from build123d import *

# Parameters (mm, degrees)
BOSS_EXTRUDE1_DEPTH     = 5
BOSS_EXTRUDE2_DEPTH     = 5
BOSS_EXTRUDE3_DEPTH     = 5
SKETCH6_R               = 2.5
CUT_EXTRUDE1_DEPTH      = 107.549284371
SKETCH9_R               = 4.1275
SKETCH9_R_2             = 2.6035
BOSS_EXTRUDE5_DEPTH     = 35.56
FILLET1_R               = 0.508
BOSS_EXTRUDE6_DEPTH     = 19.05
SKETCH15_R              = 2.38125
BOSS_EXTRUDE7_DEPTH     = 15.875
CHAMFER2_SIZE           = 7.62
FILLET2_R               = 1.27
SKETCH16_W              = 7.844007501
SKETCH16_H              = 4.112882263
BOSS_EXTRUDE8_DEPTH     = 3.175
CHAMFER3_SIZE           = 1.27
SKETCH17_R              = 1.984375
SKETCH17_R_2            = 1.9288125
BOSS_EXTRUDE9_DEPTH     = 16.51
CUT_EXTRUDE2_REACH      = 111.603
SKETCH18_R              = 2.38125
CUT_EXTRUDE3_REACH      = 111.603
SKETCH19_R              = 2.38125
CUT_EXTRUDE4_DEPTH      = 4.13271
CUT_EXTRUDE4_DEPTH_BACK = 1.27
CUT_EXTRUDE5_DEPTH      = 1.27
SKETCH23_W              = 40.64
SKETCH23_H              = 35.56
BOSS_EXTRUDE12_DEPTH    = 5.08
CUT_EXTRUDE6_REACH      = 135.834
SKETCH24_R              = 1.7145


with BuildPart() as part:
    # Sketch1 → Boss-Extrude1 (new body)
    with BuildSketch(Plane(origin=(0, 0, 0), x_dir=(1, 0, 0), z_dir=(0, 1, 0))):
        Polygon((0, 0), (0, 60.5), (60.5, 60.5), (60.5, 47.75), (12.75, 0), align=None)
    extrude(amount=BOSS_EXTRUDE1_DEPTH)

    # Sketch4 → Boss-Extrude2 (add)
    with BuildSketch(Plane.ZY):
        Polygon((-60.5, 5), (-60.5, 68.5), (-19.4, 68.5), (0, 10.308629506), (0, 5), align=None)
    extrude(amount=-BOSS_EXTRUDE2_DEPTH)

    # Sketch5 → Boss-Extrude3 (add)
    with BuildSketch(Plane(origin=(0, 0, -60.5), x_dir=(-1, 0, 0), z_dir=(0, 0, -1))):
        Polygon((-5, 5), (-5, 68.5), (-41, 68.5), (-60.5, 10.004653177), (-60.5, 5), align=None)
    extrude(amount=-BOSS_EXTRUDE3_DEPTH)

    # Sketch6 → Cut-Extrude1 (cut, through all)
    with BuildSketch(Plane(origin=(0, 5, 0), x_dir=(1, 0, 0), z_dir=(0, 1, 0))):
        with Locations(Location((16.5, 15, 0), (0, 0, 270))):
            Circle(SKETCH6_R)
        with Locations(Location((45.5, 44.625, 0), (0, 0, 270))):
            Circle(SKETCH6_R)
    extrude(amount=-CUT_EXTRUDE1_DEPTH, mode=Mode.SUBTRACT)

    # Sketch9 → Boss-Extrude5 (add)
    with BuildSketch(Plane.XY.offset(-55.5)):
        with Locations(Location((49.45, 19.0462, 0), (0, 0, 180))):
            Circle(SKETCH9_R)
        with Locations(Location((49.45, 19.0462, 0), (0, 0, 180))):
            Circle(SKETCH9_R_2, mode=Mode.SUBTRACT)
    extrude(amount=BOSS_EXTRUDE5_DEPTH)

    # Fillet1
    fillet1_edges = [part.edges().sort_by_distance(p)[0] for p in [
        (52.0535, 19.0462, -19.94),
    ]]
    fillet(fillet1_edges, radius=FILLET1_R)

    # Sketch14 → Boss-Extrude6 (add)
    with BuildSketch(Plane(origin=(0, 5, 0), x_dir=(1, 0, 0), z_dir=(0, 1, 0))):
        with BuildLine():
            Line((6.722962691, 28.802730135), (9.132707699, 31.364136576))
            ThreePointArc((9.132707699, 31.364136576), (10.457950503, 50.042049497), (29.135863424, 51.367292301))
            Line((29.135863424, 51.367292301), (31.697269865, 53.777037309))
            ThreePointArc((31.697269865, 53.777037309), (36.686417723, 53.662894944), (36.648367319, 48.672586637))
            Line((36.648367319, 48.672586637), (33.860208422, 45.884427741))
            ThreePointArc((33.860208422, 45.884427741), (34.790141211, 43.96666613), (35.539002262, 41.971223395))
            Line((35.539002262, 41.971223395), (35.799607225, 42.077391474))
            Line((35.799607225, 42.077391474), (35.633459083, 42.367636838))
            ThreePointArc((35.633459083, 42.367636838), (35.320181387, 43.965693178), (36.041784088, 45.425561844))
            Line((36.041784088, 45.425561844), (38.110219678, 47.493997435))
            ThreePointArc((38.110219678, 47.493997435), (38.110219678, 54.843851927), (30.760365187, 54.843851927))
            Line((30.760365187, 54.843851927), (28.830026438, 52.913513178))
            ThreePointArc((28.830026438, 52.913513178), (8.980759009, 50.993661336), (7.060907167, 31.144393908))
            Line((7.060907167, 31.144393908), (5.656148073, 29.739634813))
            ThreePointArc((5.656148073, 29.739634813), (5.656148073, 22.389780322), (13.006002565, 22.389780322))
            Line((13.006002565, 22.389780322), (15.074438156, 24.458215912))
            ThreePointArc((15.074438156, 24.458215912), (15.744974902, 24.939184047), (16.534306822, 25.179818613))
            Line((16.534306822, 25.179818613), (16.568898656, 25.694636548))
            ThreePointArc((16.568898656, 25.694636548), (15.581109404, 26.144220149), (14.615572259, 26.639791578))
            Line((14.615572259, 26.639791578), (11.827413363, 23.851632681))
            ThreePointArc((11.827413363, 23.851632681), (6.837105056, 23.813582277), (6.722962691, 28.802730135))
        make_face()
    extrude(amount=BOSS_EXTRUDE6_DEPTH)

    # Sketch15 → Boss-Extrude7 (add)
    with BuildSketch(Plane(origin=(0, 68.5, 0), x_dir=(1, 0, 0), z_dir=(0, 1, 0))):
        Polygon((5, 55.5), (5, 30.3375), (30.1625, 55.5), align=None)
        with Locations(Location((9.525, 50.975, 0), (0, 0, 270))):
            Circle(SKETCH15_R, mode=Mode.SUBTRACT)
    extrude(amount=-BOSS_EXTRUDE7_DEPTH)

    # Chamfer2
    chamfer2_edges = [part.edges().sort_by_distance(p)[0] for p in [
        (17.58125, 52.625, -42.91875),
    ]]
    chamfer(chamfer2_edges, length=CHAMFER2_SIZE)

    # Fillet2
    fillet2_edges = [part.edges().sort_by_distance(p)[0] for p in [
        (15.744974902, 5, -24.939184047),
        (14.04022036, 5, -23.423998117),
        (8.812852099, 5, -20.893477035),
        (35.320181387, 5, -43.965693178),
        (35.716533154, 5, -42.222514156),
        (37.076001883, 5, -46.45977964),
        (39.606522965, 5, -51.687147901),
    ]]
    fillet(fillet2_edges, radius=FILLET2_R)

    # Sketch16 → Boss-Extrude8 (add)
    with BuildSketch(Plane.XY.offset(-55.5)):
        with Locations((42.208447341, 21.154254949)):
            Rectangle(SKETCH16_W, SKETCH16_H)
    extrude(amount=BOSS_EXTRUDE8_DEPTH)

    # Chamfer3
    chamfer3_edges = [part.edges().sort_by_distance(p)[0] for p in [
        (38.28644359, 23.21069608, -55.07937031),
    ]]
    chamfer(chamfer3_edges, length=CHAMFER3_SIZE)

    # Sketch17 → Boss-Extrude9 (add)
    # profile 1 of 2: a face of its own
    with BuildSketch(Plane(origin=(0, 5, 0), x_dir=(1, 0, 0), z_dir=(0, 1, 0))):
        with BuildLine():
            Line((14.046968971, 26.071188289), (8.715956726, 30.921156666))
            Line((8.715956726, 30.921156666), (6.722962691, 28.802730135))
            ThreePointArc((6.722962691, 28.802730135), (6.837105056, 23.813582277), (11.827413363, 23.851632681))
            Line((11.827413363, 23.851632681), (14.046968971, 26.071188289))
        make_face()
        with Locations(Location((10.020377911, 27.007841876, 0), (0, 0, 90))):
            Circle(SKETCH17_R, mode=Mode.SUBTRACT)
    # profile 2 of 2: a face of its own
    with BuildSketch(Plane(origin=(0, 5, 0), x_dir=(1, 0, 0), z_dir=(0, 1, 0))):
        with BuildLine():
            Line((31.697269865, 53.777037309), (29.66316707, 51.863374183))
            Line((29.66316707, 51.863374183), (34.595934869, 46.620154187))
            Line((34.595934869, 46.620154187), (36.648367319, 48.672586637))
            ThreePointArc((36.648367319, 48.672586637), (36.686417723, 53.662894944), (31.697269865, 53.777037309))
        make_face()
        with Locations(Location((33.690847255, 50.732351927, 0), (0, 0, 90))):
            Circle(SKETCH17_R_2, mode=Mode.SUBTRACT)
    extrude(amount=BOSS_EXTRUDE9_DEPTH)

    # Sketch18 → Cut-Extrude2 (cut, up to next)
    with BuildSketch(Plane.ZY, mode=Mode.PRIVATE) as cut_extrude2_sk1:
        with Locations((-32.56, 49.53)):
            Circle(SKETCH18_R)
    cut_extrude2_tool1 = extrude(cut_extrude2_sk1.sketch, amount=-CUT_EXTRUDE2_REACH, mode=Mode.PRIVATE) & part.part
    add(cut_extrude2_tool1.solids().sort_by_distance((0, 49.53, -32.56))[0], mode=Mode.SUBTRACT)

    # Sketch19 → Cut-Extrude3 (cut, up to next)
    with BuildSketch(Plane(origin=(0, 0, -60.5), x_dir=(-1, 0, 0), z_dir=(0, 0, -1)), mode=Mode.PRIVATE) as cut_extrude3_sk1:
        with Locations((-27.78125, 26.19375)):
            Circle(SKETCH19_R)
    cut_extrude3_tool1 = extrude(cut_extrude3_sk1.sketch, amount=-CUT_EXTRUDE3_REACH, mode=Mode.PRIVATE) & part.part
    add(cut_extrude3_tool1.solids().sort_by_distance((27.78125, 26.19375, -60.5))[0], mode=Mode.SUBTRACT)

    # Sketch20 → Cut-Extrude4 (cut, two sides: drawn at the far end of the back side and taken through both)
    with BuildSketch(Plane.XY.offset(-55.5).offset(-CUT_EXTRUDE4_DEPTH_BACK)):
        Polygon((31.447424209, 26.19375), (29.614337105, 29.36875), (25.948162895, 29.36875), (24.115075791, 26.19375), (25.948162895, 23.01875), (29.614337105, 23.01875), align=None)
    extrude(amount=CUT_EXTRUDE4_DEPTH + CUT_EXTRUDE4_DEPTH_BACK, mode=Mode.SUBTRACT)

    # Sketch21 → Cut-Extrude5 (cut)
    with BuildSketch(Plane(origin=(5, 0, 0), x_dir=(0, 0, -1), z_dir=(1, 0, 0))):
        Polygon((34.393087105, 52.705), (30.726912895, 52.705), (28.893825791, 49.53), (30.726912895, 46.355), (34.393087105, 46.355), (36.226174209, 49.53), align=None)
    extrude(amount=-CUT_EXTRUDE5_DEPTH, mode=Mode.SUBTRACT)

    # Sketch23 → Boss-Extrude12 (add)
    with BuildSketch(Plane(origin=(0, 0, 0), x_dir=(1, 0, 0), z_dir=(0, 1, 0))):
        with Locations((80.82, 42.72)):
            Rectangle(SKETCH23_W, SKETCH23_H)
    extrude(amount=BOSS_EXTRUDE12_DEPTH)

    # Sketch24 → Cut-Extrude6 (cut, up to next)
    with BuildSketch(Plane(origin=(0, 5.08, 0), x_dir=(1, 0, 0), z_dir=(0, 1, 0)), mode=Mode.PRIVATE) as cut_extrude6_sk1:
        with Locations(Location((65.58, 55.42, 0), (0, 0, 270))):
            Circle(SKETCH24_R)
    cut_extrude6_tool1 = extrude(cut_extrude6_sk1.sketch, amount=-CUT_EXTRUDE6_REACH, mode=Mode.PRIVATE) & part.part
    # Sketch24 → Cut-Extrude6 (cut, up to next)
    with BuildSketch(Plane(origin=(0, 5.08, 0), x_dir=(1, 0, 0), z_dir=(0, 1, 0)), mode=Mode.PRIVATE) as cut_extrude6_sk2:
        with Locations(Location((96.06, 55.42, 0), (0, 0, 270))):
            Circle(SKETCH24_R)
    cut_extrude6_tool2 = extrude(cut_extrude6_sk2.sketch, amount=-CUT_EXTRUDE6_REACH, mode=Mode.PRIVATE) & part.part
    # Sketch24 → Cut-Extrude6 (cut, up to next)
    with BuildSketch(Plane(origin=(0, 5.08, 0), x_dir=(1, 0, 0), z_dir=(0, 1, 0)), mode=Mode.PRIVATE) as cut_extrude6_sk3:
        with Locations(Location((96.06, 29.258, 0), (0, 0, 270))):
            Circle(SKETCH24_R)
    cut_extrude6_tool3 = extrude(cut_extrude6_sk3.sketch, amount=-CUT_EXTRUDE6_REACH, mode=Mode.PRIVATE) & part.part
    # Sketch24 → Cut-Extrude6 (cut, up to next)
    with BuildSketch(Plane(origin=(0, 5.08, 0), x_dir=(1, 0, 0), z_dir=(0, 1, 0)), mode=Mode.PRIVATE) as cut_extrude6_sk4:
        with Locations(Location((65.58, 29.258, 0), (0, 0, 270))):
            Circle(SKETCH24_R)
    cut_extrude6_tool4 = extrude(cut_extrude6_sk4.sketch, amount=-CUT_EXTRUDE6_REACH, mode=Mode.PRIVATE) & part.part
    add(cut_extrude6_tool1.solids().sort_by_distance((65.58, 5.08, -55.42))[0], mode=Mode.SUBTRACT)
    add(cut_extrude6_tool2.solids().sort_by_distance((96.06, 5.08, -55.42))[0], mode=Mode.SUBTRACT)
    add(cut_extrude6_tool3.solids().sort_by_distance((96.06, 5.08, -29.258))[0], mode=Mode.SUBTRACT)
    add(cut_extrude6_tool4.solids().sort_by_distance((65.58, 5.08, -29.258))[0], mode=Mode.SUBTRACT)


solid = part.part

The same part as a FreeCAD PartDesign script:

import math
import FreeCAD as App
import Part
import Sketcher

V = App.Vector
Q = App.Units.Quantity


def edges_at(feature, points):
    """Names of the edges that pass closest to the given points."""
    edges = feature.Shape.Edges
    near = lambda p: min(range(len(edges)), key=lambda i: edges[i].distToShape(Part.Vertex(*p))[0])
    return sorted({f"Edge{near(p) + 1}" for p in points})


def add_polygon(sketch, points):
    """Adds a closed chain of lines whose ends are joined by coincident constraints."""
    first, n = sketch.GeometryCount, len(points)
    for a, b in zip(points, points[1:] + points[:1]):
        sketch.addGeometry(Part.LineSegment(App.Vector(*a, 0), App.Vector(*b, 0)), False)
    for i in range(n):
        sketch.addConstraint(Sketcher.Constraint("Coincident", first + i, 2, first + (i + 1) % n, 1))

doc = App.newDocument("Part")
body = doc.addObject("PartDesign::Body", "Body")

sketch1 = body.newObject("Sketcher::SketchObject", "Sketch")
sketch1.AttachmentSupport = (doc.getObject("XZ_Plane"), [""])
sketch1.MapMode = "FlatFace"
add_polygon(sketch1, [(0, -60), (0, 0), (13, 0), (60, -48), (60, -60)])
sketch1.addConstraint([
    Sketcher.Constraint("Vertical", 0),
    Sketcher.Constraint("Horizontal", 1),
    Sketcher.Constraint("Vertical", 3),
    Sketcher.Constraint("Horizontal", 4),
    Sketcher.Constraint("Coincident", 0, 2, -1, 1),
    Sketcher.Constraint("Equal", 4, 0),
    Sketcher.Constraint("Equal", 1, 3),
    Sketcher.Constraint("DistanceX", 1, 1, 1, 2, Q("12.75 mm")),
    Sketcher.Constraint("DistanceX", 4, 2, 4, 1, Q("60.5 mm")),
])
pad1 = body.newObject("PartDesign::Pad", "Pad")
pad1.Profile = sketch1
pad1.Length = 5
pad1.Reversed = True

sketch2 = body.newObject("Sketcher::SketchObject", "Sketch001")
sketch2.AttachmentSupport = (doc.getObject("YZ_Plane"), [""])
sketch2.MapMode = "FlatFace"
add_polygon(sketch2, [(68, -60), (5, -60), (5, 0), (10, 0), (68, -19)])
sketch2.addConstraint([
    Sketcher.Constraint("Horizontal", 0),
    Sketcher.Constraint("Vertical", 1),
    Sketcher.Constraint("Horizontal", 2),
    Sketcher.Constraint("Vertical", 4),
    Sketcher.Constraint("PointOnObject", 1, 2, -1),
    Sketcher.Constraint("DistanceX", 0, 2, 0, 1, Q("2.5 in")),
    Sketcher.Constraint("DistanceY", 1, 1, 1, 2, Q("60.5 mm")),
    Sketcher.Constraint("DistanceY", 4, 2, 4, 1, Q("41.1 mm")),
    Sketcher.Constraint("Distance", 3, Q("61.34 mm")),
    Sketcher.Constraint("DistanceX", -1, 1, 0, 2, Q("5 mm")),
])
pad2 = body.newObject("PartDesign::Pad", "Pad001")
pad2.Profile = sketch2
pad2.Length = 5

sketch3 = body.newObject("Sketcher::SketchObject", "Sketch002")
sketch3.AttachmentSupport = (doc.getObject("XY_Plane"), [""])
sketch3.MapMode = "FlatFace"
sketch3.AttachmentOffset = App.Placement(V(0, 0, -60.5), App.Rotation())
add_polygon(sketch3, [(5, 5), (5, 68), (41, 68), (60, 10), (60, 5)])
sketch3.addConstraint([
    Sketcher.Constraint("Vertical", 0),
    Sketcher.Constraint("Horizontal", 1),
    Sketcher.Constraint("Vertical", 3),
    Sketcher.Constraint("Horizontal", 4),
    Sketcher.Constraint("DistanceY", 0, 1, 0, 2, Q("2.5 in")),
    Sketcher.Constraint("DistanceX", 1, 1, 1, 2, Q("36 mm")),
    Sketcher.Constraint("DistanceX", 4, 2, 4, 1, Q("55.5 mm")),
    Sketcher.Constraint("Distance", 2, Q("61.66 mm")),
    Sketcher.Constraint("DistanceX", -1, 1, 0, 2, Q("5 mm")),
    Sketcher.Constraint("DistanceY", -1, 1, 0, 2, Q("68.5 mm")),
])
pad3 = body.newObject("PartDesign::Pad", "Pad002")
pad3.Profile = sketch3
pad3.Length = 5

sketch4 = body.newObject("Sketcher::SketchObject", "Sketch003")
sketch4.AttachmentSupport = (doc.getObject("XZ_Plane"), [""])
sketch4.MapMode = "FlatFace"
sketch4.AttachmentOffset = App.Placement(V(0, 0, -5), App.Rotation())
sketch4.addGeometry([
    Part.Circle(V(16.5, -15, 0), V(0, 0, 1), 2.5),
    Part.Circle(V(45.5, -44.6, 0), V(0, 0, 1), 2.5),
], False)
sketch4.addConstraint([
    Sketcher.Constraint("Equal", 0, 1),
    Sketcher.Constraint("Diameter", 0, Q("5 mm")),
    Sketcher.Constraint("DistanceX", -1, 1, 0, 3, Q("16.5 mm")),
    Sketcher.Constraint("DistanceY", 0, 3, -1, 1, Q("15 mm")),
    Sketcher.Constraint("DistanceX", -1, 1, 1, 3, Q("45.5 mm")),
    Sketcher.Constraint("DistanceY", 1, 3, -1, 1, Q("44.625 mm")),
])
pocket1 = body.newObject("PartDesign::Pocket", "Pocket")
pocket1.Profile = sketch4
pocket1.Type = "ThroughAll"
pocket1.Reversed = True

sketch5 = body.newObject("Sketcher::SketchObject", "Sketch004")
sketch5.AttachmentSupport = (doc.getObject("XY_Plane"), [""])
sketch5.MapMode = "FlatFace"
sketch5.AttachmentOffset = App.Placement(V(0, 0, -55.5), App.Rotation())
sketch5.addGeometry([
    Part.Circle(V(49.5, 19, 0), V(0, 0, 1), 4.1),
    Part.Circle(V(49.5, 19, 0), V(0, 0, 1), 2.6),
], False)
sketch5.addConstraint([
    Sketcher.Constraint("Coincident", 1, 3, 0, 3),
    Sketcher.Constraint("Diameter", 0, Q("0.325 in")),
    Sketcher.Constraint("Diameter", 1, Q("0.205 in")),
    Sketcher.Constraint("DistanceX", -1, 1, 0, 3, Q("49.45 mm")),
    Sketcher.Constraint("DistanceY", -1, 1, 0, 3, Q("19.0462 mm")),
])
pad4 = body.newObject("PartDesign::Pad", "Pad003")
pad4.Profile = sketch5
pad4.Length = Q("1.4 in")
doc.recompute()

fillet = body.newObject("PartDesign::Fillet", "Fillet")
fillet.Base = (pad4, edges_at(pad4, [(52.053, 19.046, -19.94)]))
fillet.Radius = Q("0.02 in")

sketch6 = body.newObject("Sketcher::SketchObject", "Sketch005")
sketch6.AttachmentSupport = (doc.getObject("XZ_Plane"), [""])
sketch6.MapMode = "FlatFace"
sketch6.AttachmentOffset = App.Placement(V(0, 0, -5), App.Rotation())
sketch6.addGeometry([
    Part.LineSegment(V(6.72, -28.8, 0), V(9.13, -31.36, 0)),
    Part.ArcOfCircle(Part.Circle(V(20.56, -39.94, 0), V(0, 0, 1), 14.29), math.radians(143), math.radians(307)),
    Part.LineSegment(V(29.14, -51.37, 0), V(31.7, -53.78, 0)),
    Part.ArcOfCircle(Part.Circle(V(34.13, -51.19, 0), V(0, 0, 1), 3.56), math.radians(-133), math.radians(45)),
    Part.LineSegment(V(36.65, -48.67, 0), V(33.86, -45.88, 0)),
    Part.ArcOfCircle(Part.Circle(V(13.6, -34.88, 0), V(0, 0, 1), 23.06), math.radians(-28.52), math.radians(-17.92)),
    Part.LineSegment(V(35.54, -41.97, 0), V(35.8, -42.08, 0)),
    Part.LineSegment(V(35.8, -42.08, 0), V(35.63, -42.37, 0)),
    Part.ArcOfCircle(Part.Circle(V(37.84, -43.63, 0), V(0, 0, 1), 2.54), math.radians(150), math.radians(225)),
    Part.LineSegment(V(36.04, -45.43, 0), V(38.11, -47.49, 0)),
    Part.ArcOfCircle(Part.Circle(V(34.44, -51.17, 0), V(0, 0, 1), 5.2), math.radians(-135), math.radians(45)),
    Part.LineSegment(V(30.76, -54.84, 0), V(28.83, -52.91, 0)),
    Part.ArcOfCircle(Part.Circle(V(20.07, -39.9, 0), V(0, 0, 1), 15.68), math.radians(146), math.radians(304)),
    Part.LineSegment(V(7.06, -31.14, 0), V(5.66, -29.74, 0)),
    Part.ArcOfCircle(Part.Circle(V(9.33, -26.06, 0), V(0, 0, 1), 5.2), math.radians(45), math.radians(225)),
    Part.LineSegment(V(13.01, -22.39, 0), V(15.07, -24.46, 0)),
    Part.ArcOfCircle(Part.Circle(V(16.87, -22.66, 0), V(0, 0, 1), 2.54), math.radians(-135), math.radians(-98)),
    Part.LineSegment(V(16.53, -25.18, 0), V(16.57, -25.69, 0)),
    Part.ArcOfCircle(Part.Circle(V(25.62, -46.9, 0), V(0, 0, 1), 23.06), math.radians(113.12), math.radians(118.52)),
    Part.LineSegment(V(14.62, -26.64, 0), V(11.83, -23.85, 0)),
    Part.ArcOfCircle(Part.Circle(V(9.31, -26.37, 0), V(0, 0, 1), 3.56), math.radians(45), math.radians(223)),
], False)
sketch6.addConstraint([
    Sketcher.Constraint("Coincident", 0, 2, 1, 1),
    Sketcher.Constraint("Coincident", 1, 2, 2, 1),
    Sketcher.Constraint("Tangent", 2, 2, 3, 1),
    Sketcher.Constraint("Tangent", 3, 2, 4, 1),
    Sketcher.Constraint("Coincident", 4, 2, 5, 1),
    Sketcher.Constraint("Coincident", 5, 2, 6, 1),
    Sketcher.Constraint("Coincident", 6, 2, 7, 1),
    Sketcher.Constraint("Tangent", 7, 2, 8, 1),
    Sketcher.Constraint("Tangent", 8, 2, 9, 1),
    Sketcher.Constraint("Tangent", 9, 2, 10, 2),
    Sketcher.Constraint("Tangent", 10, 1, 11, 1),
    Sketcher.Constraint("Coincident", 11, 2, 12, 2),
    Sketcher.Constraint("Coincident", 12, 1, 13, 1),
    Sketcher.Constraint("Tangent", 13, 2, 14, 2),
    Sketcher.Constraint("Tangent", 14, 1, 15, 1),
    Sketcher.Constraint("Tangent", 15, 2, 16, 1),
    Sketcher.Constraint("Coincident", 16, 2, 17, 1),
    Sketcher.Constraint("Coincident", 17, 2, 18, 1),
    Sketcher.Constraint("Coincident", 18, 2, 19, 1),
    Sketcher.Constraint("Tangent", 19, 2, 20, 1),
    Sketcher.Constraint("Tangent", 20, 2, 0, 1),
    Sketcher.Constraint("Equal", 10, 14),
    Sketcher.Constraint("Equal", 8, 16),
    Sketcher.Constraint("Equal", 5, 18),
    Sketcher.Constraint("Equal", 3, 20),
    Sketcher.Constraint("Parallel", 4, 9),
    Sketcher.Constraint("Parallel", 9, 11),
    Sketcher.Constraint("Parallel", 11, 13),
    Sketcher.Constraint("Parallel", 13, 15),
    Sketcher.Constraint("Parallel", 15, 19),
    Sketcher.Constraint("Equal", 0, 2),
    Sketcher.Constraint("Equal", 9, 15),
    Sketcher.Constraint("Equal", 4, 19),
    Sketcher.Constraint("Radius", 8, Q("0.1 in")),
    Sketcher.Constraint("Radius", 3, Q("0.14 in")),
    Sketcher.Constraint("Angle", 4, Q("135 deg")),
    Sketcher.Constraint("Radius", 1, Q("0.5625 in")),
    Sketcher.Constraint("Radius", 10, Q("5.197132 mm")),
    Sketcher.Constraint("Radius", 12, Q("15.683818 mm")),
    Sketcher.Constraint("DistanceX", 16, 3, 12, 3, Q("0.1260001 in")),
    Sketcher.Constraint("DistanceY", 17, 2, -1, 1, Q("1.0115999 in")),
    Sketcher.Constraint("Radius", 5, Q("23.055142 mm")),
    Sketcher.Constraint("Distance", 6, Q("0.281401 mm")),
    Sketcher.Constraint("DistanceX", -1, 1, 17, 2, Q("16.568899 mm")),
    Sketcher.Constraint("DistanceX", 12, 3, 10, 3, Q("14.364399 mm")),
    Sketcher.Constraint("DistanceY", 10, 3, 5, 2, Q("9.197701 mm")),
    Sketcher.Constraint("DistanceX", 4, 2, 6, 2, Q("1.939399 mm")),
    Sketcher.Constraint("DistanceX", 1, 2, 10, 1, Q("1.624502 mm")),
    Sketcher.Constraint("DistanceX", 12, 1, 0, 2, Q("2.071801 mm")),
    Sketcher.Constraint("DistanceY", 0, 2, 13, 2, Q("1.624502 mm")),
    Sketcher.Constraint("Distance", 0, Q("3.51677 mm")),
    Sketcher.Constraint("Distance", 9, Q("2.92521 mm")),
    Sketcher.Constraint("Distance", 11, Q("2.729911 mm")),
    Sketcher.Constraint("Distance", 13, Q("1.986629 mm")),
    Sketcher.Constraint("Distance", 17, Q("0.515979 mm")),
    Sketcher.Constraint("DistanceX", -1, 1, 1, 3, Q("20.560739 mm")),
    Sketcher.Constraint("DistanceY", 1, 3, -1, 1, Q("39.939261 mm")),
    Sketcher.Constraint("DistanceY", 3, 3, -1, 1, Q("51.187058 mm")),
    Sketcher.Constraint("DistanceY", 8, 3, -1, 1, Q("43.629511 mm")),
    Sketcher.Constraint("DistanceY", 18, 3, -1, 1, Q("46.897532 mm")),
    Sketcher.Constraint("DistanceX", -1, 1, 20, 3, Q("9.312942 mm")),
    Sketcher.Constraint("DistanceY", 6, 2, -1, 1, Q("42.077391 mm")),
])
pad5 = body.newObject("PartDesign::Pad", "Pad004")
pad5.Profile = sketch6
pad5.Length = Q("0.75 in")
pad5.Reversed = True

sketch7 = body.newObject("Sketcher::SketchObject", "Sketch006")
sketch7.AttachmentSupport = (doc.getObject("XZ_Plane"), [""])
sketch7.MapMode = "FlatFace"
sketch7.AttachmentOffset = App.Placement(V(0, 0, -68.5), App.Rotation())
add_polygon(sketch7, [(5, -55.5), (5, -30.3), (30.2, -55.5)])
sketch7.addGeometry(Part.Circle(V(9.5, -51, 0), V(0, 0, 1), 2.4), False)
sketch7.addConstraint([
    Sketcher.Constraint("Vertical", 0),
    Sketcher.Constraint("Horizontal", 2),
    Sketcher.Constraint("Equal", 2, 0),
    Sketcher.Constraint("Diameter", 3, Q("0.1875 in")),
    Sketcher.Constraint("DistanceX", -1, 1, 3, 3, Q("0.375 in")),
    Sketcher.Constraint("DistanceX", -1, 1, 1, 2, Q("1.1875 in")),
    Sketcher.Constraint("DistanceY", 3, 3, 0, 2, Q("0.8125 in")),
    Sketcher.Constraint("DistanceX", 2, 2, 2, 1, Q("25.1625 mm")),
    Sketcher.Constraint("DistanceY", 3, 3, -1, 1, Q("50.975 mm")),
])
pad6 = body.newObject("PartDesign::Pad", "Pad005")
pad6.Profile = sketch7
pad6.Length = Q("0.625 in")
doc.recompute()

chamfer = body.newObject("PartDesign::Chamfer", "Chamfer")
chamfer.Base = (pad6, edges_at(pad6, [(17.581, 52.625, -42.919)]))
chamfer.Size = Q("0.3 in")
doc.recompute()

fillet2 = body.newObject("PartDesign::Fillet", "Fillet001")
fillet2.Base = (chamfer, edges_at(chamfer, [
    (15.745, 5, -24.939),
    (14.04, 5, -23.424),
    (8.813, 5, -20.893),
    (35.32, 5, -43.966),
    (35.717, 5, -42.223),
    (37.076, 5, -46.46),
    (39.607, 5, -51.687),
]))
fillet2.Radius = Q("0.05 in")

sketch8 = body.newObject("Sketcher::SketchObject", "Sketch007")
sketch8.AttachmentSupport = (doc.getObject("XY_Plane"), [""])
sketch8.MapMode = "FlatFace"
sketch8.AttachmentOffset = App.Placement(V(0, 0, -55.5), App.Rotation())
add_polygon(sketch8, [(38.3, 23.2), (38.3, 19.1), (46.1, 19.1), (46.1, 23.2)])
sketch8.addConstraint([
    Sketcher.Constraint("Vertical", 0),
    Sketcher.Constraint("Horizontal", 1),
    Sketcher.Constraint("Vertical", 2),
    Sketcher.Constraint("Horizontal", 3),
    Sketcher.Constraint("DistanceX", 1, 1, 1, 2, Q("7.844008 mm")),
    Sketcher.Constraint("DistanceY", 0, 2, 0, 1, Q("4.112882 mm")),
    Sketcher.Constraint("DistanceX", -1, 1, 1, 2, Q("46.130451 mm")),
    Sketcher.Constraint("DistanceY", -1, 1, 0, 2, Q("19.097814 mm")),
])
pad7 = body.newObject("PartDesign::Pad", "Pad006")
pad7.Profile = sketch8
pad7.Length = Q("0.125 in")
doc.recompute()

chamfer2 = body.newObject("PartDesign::Chamfer", "Chamfer001")
chamfer2.Base = (pad7, edges_at(pad7, [(38.286, 23.211, -55.079)]))
chamfer2.Size = Q("0.05 in")

sketch9 = body.newObject("Sketcher::SketchObject", "Sketch008")
sketch9.AttachmentSupport = (doc.getObject("XZ_Plane"), [""])
sketch9.MapMode = "FlatFace"
sketch9.AttachmentOffset = App.Placement(V(0, 0, -5), App.Rotation())
sketch9.addGeometry([
    Part.LineSegment(V(14, -26.1, 0), V(8.7, -30.9, 0)),
    Part.LineSegment(V(8.7, -30.9, 0), V(6.7, -28.8, 0)),
    Part.ArcOfCircle(Part.Circle(V(9.3, -26.4, 0), V(0, 0, 1), 3.6), math.radians(45), math.radians(223)),
    Part.LineSegment(V(11.8, -23.9, 0), V(14, -26.1, 0)),
    Part.Circle(V(10, -27, 0), V(0, 0, 1), 2),
    Part.LineSegment(V(31.7, -53.8, 0), V(29.7, -51.9, 0)),
    Part.LineSegment(V(29.7, -51.9, 0), V(34.6, -46.6, 0)),
    Part.LineSegment(V(34.6, -46.6, 0), V(36.6, -48.7, 0)),
    Part.ArcOfCircle(Part.Circle(V(34.1, -51.2, 0), V(0, 0, 1), 3.6), math.radians(-133), math.radians(45)),
    Part.Circle(V(33.7, -50.7, 0), V(0, 0, 1), 1.9),
], False)
sketch9.addConstraint([
    Sketcher.Constraint("Coincident", 0, 2, 1, 1),
    Sketcher.Constraint("Tangent", 1, 2, 2, 2),
    Sketcher.Constraint("Tangent", 2, 1, 3, 1),
    Sketcher.Constraint("Coincident", 3, 2, 0, 1),
    Sketcher.Constraint("Coincident", 5, 2, 6, 1),
    Sketcher.Constraint("Coincident", 6, 2, 7, 1),
    Sketcher.Constraint("Tangent", 7, 2, 8, 2),
    Sketcher.Constraint("Tangent", 8, 1, 5, 1),
    Sketcher.Constraint("Equal", 2, 8),
    Sketcher.Constraint("Perpendicular", 5, 6),
    Sketcher.Constraint("Parallel", 3, 7),
    Sketcher.Constraint("Radius", 2, Q("0.14 in")),
    Sketcher.Constraint("Diameter", 4, Q("0.15625 in")),
    Sketcher.Constraint("Angle", 3, Q("-45 deg")),
    Sketcher.Constraint("Diameter", 9, Q("3.857625 mm")),
    Sketcher.Constraint("DistanceY", 8, 3, 0, 2, Q("20.265902 mm")),
    Sketcher.Constraint("DistanceX", 3, 2, 5, 2, Q("15.616198 mm")),
    Sketcher.Constraint("DistanceX", 5, 2, 7, 2, Q("6.9852 mm")),
    Sketcher.Constraint("DistanceY", 7, 2, 3, 2, Q("22.601398 mm")),
    Sketcher.Constraint("Distance", 0, Q("7.207072 mm")),
    Sketcher.Constraint("Distance", 5, Q("2.792791 mm")),
    Sketcher.Constraint("DistanceX", -1, 1, 2, 3, Q("9.312942 mm")),
    Sketcher.Constraint("DistanceY", 4, 3, -1, 1, Q("27.007842 mm")),
    Sketcher.Constraint("DistanceY", 8, 3, -1, 1, Q("51.187058 mm")),
    Sketcher.Constraint("DistanceY", 9, 3, -1, 1, Q("50.732352 mm")),
    Sketcher.Constraint("DistanceY", 1, 2, -1, 1, Q("28.80273 mm")),
    Sketcher.Constraint("DistanceX", 9, 3, 8, 3, Q("0.443048 mm")),
    Sketcher.Constraint("DistanceX", 4, 3, 9, 3, Q("23.670469 mm")),
])
pad8 = body.newObject("PartDesign::Pad", "Pad007")
pad8.Profile = sketch9
pad8.Length = Q("0.65 in")
pad8.Reversed = True

sketch10 = body.newObject("Sketcher::SketchObject", "Sketch009")
sketch10.AttachmentSupport = (doc.getObject("YZ_Plane"), [""])
sketch10.MapMode = "FlatFace"
sketch10.addGeometry(Part.Circle(V(49.5, -32.6, 0), V(0, 0, 1), 2.4), False)
sketch10.addConstraint([
    Sketcher.Constraint("Diameter", 0, Q("0.1875 in")),
    Sketcher.Constraint("DistanceX", -1, 1, 0, 3, Q("1.95 in")),
    Sketcher.Constraint("DistanceY", 0, 3, -1, 1, Q("32.56 mm")),
])
pocket2 = body.newObject("PartDesign::Pocket", "Pocket001")
pocket2.Profile = sketch10
pocket2.Type = "UpToFirst"
pocket2.Reversed = True

sketch11 = body.newObject("Sketcher::SketchObject", "Sketch010")
sketch11.AttachmentSupport = (doc.getObject("XY_Plane"), [""])
sketch11.MapMode = "FlatFace"
sketch11.AttachmentOffset = App.Placement(V(0, 0, -60.5), App.Rotation())
sketch11.addGeometry(Part.Circle(V(27.8, 26.2, 0), V(0, 0, 1), 2.4), False)
sketch11.addConstraint([
    Sketcher.Constraint("Diameter", 0, Q("0.1875 in")),
    Sketcher.Constraint("DistanceX", -1, 1, 0, 3, Q("1.09375 in")),
    Sketcher.Constraint("DistanceY", -1, 1, 0, 3, Q("1.03125 in")),
])
pocket3 = body.newObject("PartDesign::Pocket", "Pocket002")
pocket3.Profile = sketch11
pocket3.Type = "UpToFirst"
pocket3.Reversed = True

sketch12 = body.newObject("Sketcher::SketchObject", "Sketch011")
sketch12.AttachmentSupport = (doc.getObject("XY_Plane"), [""])
sketch12.MapMode = "FlatFace"
sketch12.AttachmentOffset = App.Placement(V(0, 0, -55.5), App.Rotation())
add_polygon(sketch12, [(31.4, 26.2), (29.6, 29.4), (25.9, 29.4), (24.1, 26.2), (25.9, 23), (29.6, 23)])
sketch12.addConstraint([
    Sketcher.Constraint("Horizontal", 1),
    Sketcher.Constraint("Horizontal", 4),
    Sketcher.Constraint("Parallel", 0, 3),
    Sketcher.Constraint("Parallel", 2, 5),
    Sketcher.Constraint("Horizontal", 2, 2, 5, 2),
    Sketcher.Constraint("Vertical", 1, 2, 3, 2),
    Sketcher.Constraint("Vertical", 0, 2, 4, 2),
    Sketcher.Constraint("Angle", 0, Q("120 deg")),
    Sketcher.Constraint("DistanceY", 3, 2, 1, 2, Q("0.25 in")),
    Sketcher.Constraint("DistanceY", -1, 1, 0, 2, Q("1.15625 in")),
    Sketcher.Constraint("DistanceX", 1, 2, 1, 1, Q("3.666174 mm")),
    Sketcher.Constraint("DistanceX", -1, 1, 0, 2, Q("29.614337 mm")),
])
pocket4 = body.newObject("PartDesign::Pocket", "Pocket003")
pocket4.Profile = sketch12
pocket4.Type = "TwoLengths"
pocket4.Length = 4.13271
pocket4.Length2 = Q("0.05 in")
pocket4.Reversed = True

sketch13 = body.newObject("Sketcher::SketchObject", "Sketch012")
sketch13.AttachmentSupport = (doc.getObject("YZ_Plane"), [""])
sketch13.MapMode = "FlatFace"
sketch13.AttachmentOffset = App.Placement(V(0, 0, 5), App.Rotation())
add_polygon(sketch13, [(52.7, -34.4), (52.7, -30.7), (49.5, -28.9), (46.4, -30.7), (46.4, -34.4), (49.5, -36.2)])
sketch13.addConstraint([
    Sketcher.Constraint("Vertical", 0),
    Sketcher.Constraint("Vertical", 3),
    Sketcher.Constraint("Parallel", 1, 4),
    Sketcher.Constraint("Parallel", 2, 5),
    Sketcher.Constraint("Horizontal", 0, 2, 2, 2),
    Sketcher.Constraint("Horizontal", 3, 2, 5, 2),
    Sketcher.Constraint("Vertical", 1, 2, 4, 2),
    Sketcher.Constraint("Angle", 1, Q("150 deg")),
    Sketcher.Constraint("DistanceX", -1, 1, 1, 2, Q("1.95 in")),
    Sketcher.Constraint("DistanceX", 2, 2, 0, 2, Q("0.25 in")),
    Sketcher.Constraint("DistanceY", 0, 1, 0, 2, Q("3.666174 mm")),
    Sketcher.Constraint("DistanceY", 0, 2, -1, 1, Q("30.726913 mm")),
])
pocket5 = body.newObject("PartDesign::Pocket", "Pocket004")
pocket5.Profile = sketch13
pocket5.Length = Q("0.05 in")

sketch14 = body.newObject("Sketcher::SketchObject", "Sketch013")
sketch14.AttachmentSupport = (doc.getObject("XZ_Plane"), [""])
sketch14.MapMode = "FlatFace"
add_polygon(sketch14, [(60, -60), (60, -25), (101, -25), (101, -60)])
sketch14.addConstraint([
    Sketcher.Constraint("Vertical", 0),
    Sketcher.Constraint("Horizontal", 1),
    Sketcher.Constraint("Vertical", 2),
    Sketcher.Constraint("Horizontal", 3),
    Sketcher.Constraint("DistanceX", 1, 1, 1, 2, Q("1.6 in")),
    Sketcher.Constraint("DistanceY", 0, 1, 0, 2, Q("1.4 in")),
    Sketcher.Constraint("DistanceX", -1, 1, 0, 2, Q("60.5 mm")),
    Sketcher.Constraint("DistanceY", 0, 2, -1, 1, Q("24.94 mm")),
])
pad9 = body.newObject("PartDesign::Pad", "Pad008")
pad9.Profile = sketch14
pad9.Length = Q("0.2 in")
pad9.Reversed = True

sketch15 = body.newObject("Sketcher::SketchObject", "Sketch014")
sketch15.AttachmentSupport = (doc.getObject("XZ_Plane"), [""])
sketch15.MapMode = "FlatFace"
sketch15.AttachmentOffset = App.Placement(V(0, 0, -0.2 * 25.4), App.Rotation())
sketch15.addGeometry(Part.Circle(V(65.6, -55.4, 0), V(0, 0, 1), 1.7), False)
sketch15.addConstraint([
    Sketcher.Constraint("Diameter", 0, Q("0.135 in")),
    Sketcher.Constraint("DistanceX", -1, 1, 0, 3, Q("65.58 mm")),
    Sketcher.Constraint("DistanceY", 0, 3, -1, 1, Q("55.42 mm")),
])
pocket6 = body.newObject("PartDesign::Pocket", "Pocket005")
pocket6.Profile = sketch15
pocket6.Type = "UpToFirst"
pocket6.Reversed = True

sketch16 = body.newObject("Sketcher::SketchObject", "Sketch015")
sketch16.AttachmentSupport = (doc.getObject("XZ_Plane"), [""])
sketch16.MapMode = "FlatFace"
sketch16.AttachmentOffset = App.Placement(V(0, 0, -0.2 * 25.4), App.Rotation())
sketch16.addGeometry(Part.Circle(V(96.1, -55.4, 0), V(0, 0, 1), 1.7), False)
sketch16.addConstraint([
    Sketcher.Constraint("Diameter", 0, Q("0.135 in")),
    Sketcher.Constraint("DistanceX", -1, 1, 0, 3, Q("96.06 mm")),
    Sketcher.Constraint("DistanceY", 0, 3, -1, 1, Q("55.42 mm")),
])
pocket7 = body.newObject("PartDesign::Pocket", "Pocket006")
pocket7.Profile = sketch16
pocket7.Type = "UpToFirst"
pocket7.Reversed = True

sketch17 = body.newObject("Sketcher::SketchObject", "Sketch016")
sketch17.AttachmentSupport = (doc.getObject("XZ_Plane"), [""])
sketch17.MapMode = "FlatFace"
sketch17.AttachmentOffset = App.Placement(V(0, 0, -0.2 * 25.4), App.Rotation())
sketch17.addGeometry(Part.Circle(V(96.1, -29.3, 0), V(0, 0, 1), 1.7), False)
sketch17.addConstraint([
    Sketcher.Constraint("Diameter", 0, Q("0.135 in")),
    Sketcher.Constraint("DistanceX", -1, 1, 0, 3, Q("96.06 mm")),
    Sketcher.Constraint("DistanceY", 0, 3, -1, 1, Q("29.258 mm")),
])
pocket8 = body.newObject("PartDesign::Pocket", "Pocket007")
pocket8.Profile = sketch17
pocket8.Type = "UpToFirst"
pocket8.Reversed = True

sketch18 = body.newObject("Sketcher::SketchObject", "Sketch017")
sketch18.AttachmentSupport = (doc.getObject("XZ_Plane"), [""])
sketch18.MapMode = "FlatFace"
sketch18.AttachmentOffset = App.Placement(V(0, 0, -0.2 * 25.4), App.Rotation())
sketch18.addGeometry(Part.Circle(V(65.6, -29.3, 0), V(0, 0, 1), 1.7), False)
sketch18.addConstraint([
    Sketcher.Constraint("Diameter", 0, Q("0.135 in")),
    Sketcher.Constraint("DistanceX", -1, 1, 0, 3, Q("65.58 mm")),
    Sketcher.Constraint("DistanceY", 0, 3, -1, 1, Q("29.258 mm")),
])
pocket9 = body.newObject("PartDesign::Pocket", "Pocket008")
pocket9.Profile = sketch18
pocket9.Type = "UpToFirst"
pocket9.Reversed = True

doc.recompute()
